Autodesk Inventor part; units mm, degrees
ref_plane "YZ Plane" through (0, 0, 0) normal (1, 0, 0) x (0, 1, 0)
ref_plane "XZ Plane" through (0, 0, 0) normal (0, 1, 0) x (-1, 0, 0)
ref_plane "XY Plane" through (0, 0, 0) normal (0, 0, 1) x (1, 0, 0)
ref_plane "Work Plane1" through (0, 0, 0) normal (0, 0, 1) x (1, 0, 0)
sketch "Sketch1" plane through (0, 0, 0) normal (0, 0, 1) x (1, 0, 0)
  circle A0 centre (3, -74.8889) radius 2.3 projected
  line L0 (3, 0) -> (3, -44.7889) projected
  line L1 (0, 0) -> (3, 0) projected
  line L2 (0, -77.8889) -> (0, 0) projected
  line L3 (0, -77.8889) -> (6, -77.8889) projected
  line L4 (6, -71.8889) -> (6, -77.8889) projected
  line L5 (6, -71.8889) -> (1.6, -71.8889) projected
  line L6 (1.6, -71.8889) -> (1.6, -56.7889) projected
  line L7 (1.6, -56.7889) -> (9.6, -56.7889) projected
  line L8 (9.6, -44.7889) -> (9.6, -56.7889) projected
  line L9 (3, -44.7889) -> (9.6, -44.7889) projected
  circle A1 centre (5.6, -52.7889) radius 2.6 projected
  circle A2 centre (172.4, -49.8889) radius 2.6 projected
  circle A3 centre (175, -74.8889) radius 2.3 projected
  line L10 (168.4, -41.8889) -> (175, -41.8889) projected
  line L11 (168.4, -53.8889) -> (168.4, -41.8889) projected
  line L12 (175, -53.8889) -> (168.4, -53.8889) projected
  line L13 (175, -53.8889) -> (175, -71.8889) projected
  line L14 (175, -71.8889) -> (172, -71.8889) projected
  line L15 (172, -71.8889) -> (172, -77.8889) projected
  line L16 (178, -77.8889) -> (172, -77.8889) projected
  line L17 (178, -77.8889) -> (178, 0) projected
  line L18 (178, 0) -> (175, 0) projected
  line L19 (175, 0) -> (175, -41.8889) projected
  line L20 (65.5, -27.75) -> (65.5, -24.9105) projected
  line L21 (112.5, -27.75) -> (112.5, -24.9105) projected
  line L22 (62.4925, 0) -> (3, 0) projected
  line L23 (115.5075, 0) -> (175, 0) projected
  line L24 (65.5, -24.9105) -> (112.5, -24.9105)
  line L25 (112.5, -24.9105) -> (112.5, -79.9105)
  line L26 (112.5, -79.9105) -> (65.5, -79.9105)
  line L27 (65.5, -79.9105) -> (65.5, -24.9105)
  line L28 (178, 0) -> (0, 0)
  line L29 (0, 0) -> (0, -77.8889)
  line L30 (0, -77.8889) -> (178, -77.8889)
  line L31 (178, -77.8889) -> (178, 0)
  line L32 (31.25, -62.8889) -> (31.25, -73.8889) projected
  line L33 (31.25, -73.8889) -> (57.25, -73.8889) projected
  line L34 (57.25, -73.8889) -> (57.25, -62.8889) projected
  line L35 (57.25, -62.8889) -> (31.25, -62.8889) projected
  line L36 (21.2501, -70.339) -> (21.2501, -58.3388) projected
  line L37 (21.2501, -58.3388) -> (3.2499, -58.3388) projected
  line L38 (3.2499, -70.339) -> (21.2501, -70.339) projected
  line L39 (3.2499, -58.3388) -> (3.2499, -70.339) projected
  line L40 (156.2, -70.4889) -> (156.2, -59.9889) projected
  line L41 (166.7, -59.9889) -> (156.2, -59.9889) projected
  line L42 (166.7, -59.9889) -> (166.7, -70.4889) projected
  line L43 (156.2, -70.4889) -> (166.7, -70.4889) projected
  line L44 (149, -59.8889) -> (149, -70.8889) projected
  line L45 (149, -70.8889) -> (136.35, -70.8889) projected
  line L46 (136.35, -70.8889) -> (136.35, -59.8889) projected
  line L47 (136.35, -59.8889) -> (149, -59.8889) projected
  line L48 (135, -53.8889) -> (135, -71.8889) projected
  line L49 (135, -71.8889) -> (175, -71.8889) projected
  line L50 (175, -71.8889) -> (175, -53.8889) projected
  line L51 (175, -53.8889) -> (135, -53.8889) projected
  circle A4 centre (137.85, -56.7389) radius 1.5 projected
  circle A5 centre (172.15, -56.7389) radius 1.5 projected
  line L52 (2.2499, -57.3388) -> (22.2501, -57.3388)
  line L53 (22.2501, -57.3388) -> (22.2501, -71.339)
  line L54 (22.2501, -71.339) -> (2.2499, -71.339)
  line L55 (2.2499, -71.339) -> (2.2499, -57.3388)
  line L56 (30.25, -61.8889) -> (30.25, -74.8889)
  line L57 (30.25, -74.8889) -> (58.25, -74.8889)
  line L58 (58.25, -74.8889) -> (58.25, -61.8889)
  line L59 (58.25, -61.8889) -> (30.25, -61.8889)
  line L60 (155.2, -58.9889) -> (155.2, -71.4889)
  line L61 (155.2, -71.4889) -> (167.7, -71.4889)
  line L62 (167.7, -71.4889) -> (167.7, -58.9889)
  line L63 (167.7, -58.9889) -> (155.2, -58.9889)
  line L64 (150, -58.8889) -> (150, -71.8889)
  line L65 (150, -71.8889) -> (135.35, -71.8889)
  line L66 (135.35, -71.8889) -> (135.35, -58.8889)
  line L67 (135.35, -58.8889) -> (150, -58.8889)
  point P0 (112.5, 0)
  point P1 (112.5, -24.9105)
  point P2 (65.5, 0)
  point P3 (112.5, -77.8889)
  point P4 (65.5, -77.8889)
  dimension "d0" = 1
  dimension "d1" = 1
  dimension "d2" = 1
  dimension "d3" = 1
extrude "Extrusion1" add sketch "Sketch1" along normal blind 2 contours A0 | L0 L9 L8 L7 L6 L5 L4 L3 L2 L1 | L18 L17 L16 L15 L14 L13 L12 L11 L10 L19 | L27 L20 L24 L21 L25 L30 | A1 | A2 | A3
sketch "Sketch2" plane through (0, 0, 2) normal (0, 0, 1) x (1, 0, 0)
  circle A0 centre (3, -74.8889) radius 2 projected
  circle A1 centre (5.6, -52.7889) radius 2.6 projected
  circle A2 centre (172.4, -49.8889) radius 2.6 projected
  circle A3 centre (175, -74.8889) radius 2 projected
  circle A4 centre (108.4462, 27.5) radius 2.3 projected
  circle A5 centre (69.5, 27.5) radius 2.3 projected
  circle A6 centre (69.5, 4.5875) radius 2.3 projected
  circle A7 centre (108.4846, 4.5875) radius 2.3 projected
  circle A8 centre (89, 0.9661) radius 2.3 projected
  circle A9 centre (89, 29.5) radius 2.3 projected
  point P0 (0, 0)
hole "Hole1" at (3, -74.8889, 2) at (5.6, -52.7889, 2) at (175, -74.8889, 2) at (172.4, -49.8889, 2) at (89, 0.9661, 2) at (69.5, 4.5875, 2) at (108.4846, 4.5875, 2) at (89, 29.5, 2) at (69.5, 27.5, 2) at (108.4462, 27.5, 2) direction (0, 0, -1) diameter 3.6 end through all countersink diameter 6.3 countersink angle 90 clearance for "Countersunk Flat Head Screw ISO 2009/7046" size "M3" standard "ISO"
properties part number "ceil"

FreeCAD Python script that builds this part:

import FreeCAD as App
import Part
import Sketcher

V = App.Vector

doc = App.newDocument("Part")
body = doc.addObject("PartDesign::Body", "Body")
body.AllowCompound = True

sketch1 = body.newObject("Sketcher::SketchObject", "Sketch")
sketch1.AttachmentSupport = (doc.getObject("XY_Plane"), [""])
sketch1.MapMode = "FlatFace"
sketch1.addGeometry(Part.LineSegment(V(3, -44.8, 0), V(3, 0, 0)), False)
sketch1.addGeometry(Part.LineSegment(V(3, 0, 0), V(0, 0, 0)), False)
sketch1.addGeometry(Part.LineSegment(V(0, 0, 0), V(0, -77.9, 0)), False)
sketch1.addGeometry(Part.LineSegment(V(0, -77.9, 0), V(6, -77.9, 0)), False)
sketch1.addGeometry(Part.LineSegment(V(6, -77.9, 0), V(6, -71.9, 0)), False)
sketch1.addGeometry(Part.LineSegment(V(6, -71.9, 0), V(1.6, -71.9, 0)), False)
sketch1.addGeometry(Part.LineSegment(V(1.6, -71.9, 0), V(1.6, -56.8, 0)), False)
sketch1.addGeometry(Part.LineSegment(V(1.6, -56.8, 0), V(9.6, -56.8, 0)), False)
sketch1.addGeometry(Part.LineSegment(V(9.6, -56.8, 0), V(9.6, -44.8, 0)), False)
sketch1.addGeometry(Part.LineSegment(V(9.6, -44.8, 0), V(3, -44.8, 0)), False)
sketch1.addGeometry(Part.LineSegment(V(178, 0, 0), V(175, 0, 0)), False)
sketch1.addGeometry(Part.LineSegment(V(175, 0, 0), V(175, -41.9, 0)), False)
sketch1.addGeometry(Part.LineSegment(V(175, -41.9, 0), V(168.4, -41.9, 0)), False)
sketch1.addGeometry(Part.LineSegment(V(168.4, -41.9, 0), V(168.4, -53.9, 0)), False)
sketch1.addGeometry(Part.LineSegment(V(168.4, -53.9, 0), V(175, -53.9, 0)), False)
sketch1.addGeometry(Part.LineSegment(V(175, -53.9, 0), V(175, -71.9, 0)), False)
sketch1.addGeometry(Part.LineSegment(V(175, -71.9, 0), V(172, -71.9, 0)), False)
sketch1.addGeometry(Part.LineSegment(V(172, -71.9, 0), V(172, -77.9, 0)), False)
sketch1.addGeometry(Part.LineSegment(V(172, -77.9, 0), V(178, -77.9, 0)), False)
sketch1.addGeometry(Part.LineSegment(V(178, -77.9, 0), V(178, 0, 0)), False)
sketch1.addGeometry(Part.LineSegment(V(65.5, -24.9, 0), V(65.5, -77.9, 0)), False)
sketch1.addGeometry(Part.LineSegment(V(65.5, -77.9, 0), V(112.5, -77.9, 0)), False)
sketch1.addGeometry(Part.LineSegment(V(112.5, -77.9, 0), V(112.5, -24.9, 0)), False)
sketch1.addGeometry(Part.LineSegment(V(112.5, -24.9, 0), V(65.5, -24.9, 0)), False)
sketch1.addConstraint(Sketcher.Constraint("Coincident", 0, 2, 1, 1))
sketch1.addConstraint(Sketcher.Constraint("Coincident", 1, 2, 2, 1))
sketch1.addConstraint(Sketcher.Constraint("Coincident", 2, 2, 3, 1))
sketch1.addConstraint(Sketcher.Constraint("Coincident", 3, 2, 4, 1))
sketch1.addConstraint(Sketcher.Constraint("Coincident", 4, 2, 5, 1))
sketch1.addConstraint(Sketcher.Constraint("Coincident", 5, 2, 6, 1))
sketch1.addConstraint(Sketcher.Constraint("Coincident", 6, 2, 7, 1))
sketch1.addConstraint(Sketcher.Constraint("Coincident", 7, 2, 8, 1))
sketch1.addConstraint(Sketcher.Constraint("Coincident", 8, 2, 9, 1))
sketch1.addConstraint(Sketcher.Constraint("Coincident", 9, 2, 0, 1))
sketch1.addConstraint(Sketcher.Constraint("Coincident", 10, 2, 11, 1))
sketch1.addConstraint(Sketcher.Constraint("Coincident", 11, 2, 12, 1))
sketch1.addConstraint(Sketcher.Constraint("Coincident", 12, 2, 13, 1))
sketch1.addConstraint(Sketcher.Constraint("Coincident", 13, 2, 14, 1))
sketch1.addConstraint(Sketcher.Constraint("Coincident", 14, 2, 15, 1))
sketch1.addConstraint(Sketcher.Constraint("Coincident", 15, 2, 16, 1))
sketch1.addConstraint(Sketcher.Constraint("Coincident", 16, 2, 17, 1))
sketch1.addConstraint(Sketcher.Constraint("Coincident", 17, 2, 18, 1))
sketch1.addConstraint(Sketcher.Constraint("Coincident", 18, 2, 19, 1))
sketch1.addConstraint(Sketcher.Constraint("Coincident", 19, 2, 10, 1))
sketch1.addConstraint(Sketcher.Constraint("Coincident", 20, 2, 21, 1))
sketch1.addConstraint(Sketcher.Constraint("Coincident", 21, 2, 22, 1))
sketch1.addConstraint(Sketcher.Constraint("Coincident", 22, 2, 23, 1))
sketch1.addConstraint(Sketcher.Constraint("Coincident", 23, 2, 20, 1))
sketch1.addConstraint(Sketcher.Constraint("Vertical", 0))
sketch1.addConstraint(Sketcher.Constraint("Horizontal", 1))
sketch1.addConstraint(Sketcher.Constraint("Vertical", 2))
sketch1.addConstraint(Sketcher.Constraint("Horizontal", 3))
sketch1.addConstraint(Sketcher.Constraint("Vertical", 4))
sketch1.addConstraint(Sketcher.Constraint("Horizontal", 5))
sketch1.addConstraint(Sketcher.Constraint("Vertical", 6))
sketch1.addConstraint(Sketcher.Constraint("Horizontal", 7))
sketch1.addConstraint(Sketcher.Constraint("Vertical", 8))
sketch1.addConstraint(Sketcher.Constraint("Horizontal", 9))
sketch1.addConstraint(Sketcher.Constraint("Horizontal", 10))
sketch1.addConstraint(Sketcher.Constraint("Vertical", 11))
sketch1.addConstraint(Sketcher.Constraint("Horizontal", 12))
sketch1.addConstraint(Sketcher.Constraint("Vertical", 13))
sketch1.addConstraint(Sketcher.Constraint("Horizontal", 14))
sketch1.addConstraint(Sketcher.Constraint("Vertical", 15))
sketch1.addConstraint(Sketcher.Constraint("Horizontal", 16))
sketch1.addConstraint(Sketcher.Constraint("Vertical", 17))
sketch1.addConstraint(Sketcher.Constraint("Horizontal", 18))
sketch1.addConstraint(Sketcher.Constraint("Vertical", 19))
sketch1.addConstraint(Sketcher.Constraint("Vertical", 20))
sketch1.addConstraint(Sketcher.Constraint("Horizontal", 21))
sketch1.addConstraint(Sketcher.Constraint("Vertical", 22))
sketch1.addConstraint(Sketcher.Constraint("Horizontal", 23))
sketch1.addConstraint(Sketcher.Constraint("Coincident", 1, 2, -1, 1))
sketch1.addConstraint(Sketcher.Constraint("PointOnObject", 10, 2, -1))
sketch1.addConstraint(Sketcher.Constraint("Horizontal", 5, 2, 15, 2))
sketch1.addConstraint(Sketcher.Constraint("Horizontal", 3, 2, 17, 2))
sketch1.addConstraint(Sketcher.Constraint("Horizontal", 18, 2, 20, 2))
sketch1.addConstraint(Sketcher.Constraint("Vertical", 11, 2, 14, 2))
sketch1.addConstraint(Sketcher.Constraint("Equal", 1, 10))
sketch1.addConstraint(Sketcher.Constraint("Equal", 9, 12))
sketch1.addConstraint(Sketcher.Constraint("Equal", 10, 16))
sketch1.addConstraint(Sketcher.Constraint("Equal", 3, 18))
sketch1.addConstraint(Sketcher.Constraint("Equal", 18, 4))
sketch1.addConstraint(Sketcher.Constraint("Equal", 8, 13))
sketch1.addConstraint(Sketcher.Constraint("DistanceX", 1, 2, 1, 1, 3.0))
sketch1.addConstraint(Sketcher.Constraint("DistanceX", 7, 1, 7, 2, 8.0))
sketch1.addConstraint(Sketcher.Constraint("DistanceX", 21, 1, 21, 2, 47.0))
sketch1.addConstraint(Sketcher.Constraint("DistanceY", 8, 1, 8, 2, 12.0))
sketch1.addConstraint(Sketcher.Constraint("DistanceY", 15, 2, 15, 1, 18.0))
sketch1.addConstraint(Sketcher.Constraint("DistanceX", 5, 2, 5, 1, 4.4))
sketch1.addConstraint(Sketcher.Constraint("DistanceY", 6, 1, 6, 2, 15.1))
sketch1.addConstraint(Sketcher.Constraint("DistanceX", -1, 1, 10, 2, 175.0))
sketch1.addConstraint(Sketcher.Constraint("DistanceX", -1, 1, 20, 2, 65.5))
sketch1.addConstraint(Sketcher.Constraint("DistanceY", 0, 1, 0, 2, 44.789))
sketch1.addConstraint(Sketcher.Constraint("DistanceY", 20, 2, 20, 1, 52.9784))
pad1 = body.newObject("PartDesign::Pad", "Pad")
pad1.Profile = sketch1
pad1.Length = 2

sketch2 = body.newObject("Sketcher::SketchObject", "Sketch001")
sketch2.AttachmentSupport = (doc.getObject("XY_Plane"), [""])
sketch2.MapMode = "FlatFace"
sketch2.AttachmentOffset = App.Placement(V(0, 0, 2), App.Rotation())
sketch2.addGeometry(Part.Circle(V(3, -74.9, 0), V(0, 0, 1), 1.8), False)
sketch2.addGeometry(Part.Circle(V(5.6, -52.8, 0), V(0, 0, 1), 1.8), False)
sketch2.addGeometry(Part.Circle(V(175, -74.9, 0), V(0, 0, 1), 1.8), False)
sketch2.addGeometry(Part.Circle(V(172.4, -49.9, 0), V(0, 0, 1), 1.8), False)
sketch2.addGeometry(Part.Circle(V(89, 1, 0), V(0, 0, 1), 1.8), False)
sketch2.addGeometry(Part.Circle(V(69.5, 4.6, 0), V(0, 0, 1), 1.8), False)
sketch2.addGeometry(Part.Circle(V(108.5, 4.6, 0), V(0, 0, 1), 1.8), False)
sketch2.addGeometry(Part.Circle(V(89, 29.5, 0), V(0, 0, 1), 1.8), False)
sketch2.addGeometry(Part.Circle(V(69.5, 27.5, 0), V(0, 0, 1), 1.8), False)
sketch2.addGeometry(Part.Circle(V(108.4, 27.5, 0), V(0, 0, 1), 1.8), False)
sketch2.addConstraint(Sketcher.Constraint("Equal", 0, 1))
sketch2.addConstraint(Sketcher.Constraint("Equal", 1, 2))
sketch2.addConstraint(Sketcher.Constraint("Equal", 2, 3))
sketch2.addConstraint(Sketcher.Constraint("Equal", 3, 4))
sketch2.addConstraint(Sketcher.Constraint("Equal", 4, 5))
sketch2.addConstraint(Sketcher.Constraint("Equal", 5, 6))
sketch2.addConstraint(Sketcher.Constraint("Equal", 6, 7))
sketch2.addConstraint(Sketcher.Constraint("Equal", 7, 8))
sketch2.addConstraint(Sketcher.Constraint("Equal", 8, 9))
sketch2.addConstraint(Sketcher.Constraint("Horizontal", 0, 3, 2, 3))
sketch2.addConstraint(Sketcher.Constraint("Horizontal", 5, 3, 6, 3))
sketch2.addConstraint(Sketcher.Constraint("Horizontal", 8, 3, 9, 3))
sketch2.addConstraint(Sketcher.Constraint("Vertical", 4, 3, 7, 3))
sketch2.addConstraint(Sketcher.Constraint("Vertical", 5, 3, 8, 3))
sketch2.addConstraint(Sketcher.Constraint("Diameter", 0, 3.6))
sketch2.addConstraint(Sketcher.Constraint("DistanceX", -1, 1, 0, 3, 3.0))
sketch2.addConstraint(Sketcher.Constraint("DistanceX", -1, 1, 2, 3, 175.0))
sketch2.addConstraint(Sketcher.Constraint("DistanceX", -1, 1, 4, 3, 89.0))
sketch2.addConstraint(Sketcher.Constraint("DistanceY", 2, 3, 3, 3, 25.0))
sketch2.addConstraint(Sketcher.Constraint("DistanceY", 8, 3, 7, 3, 2.0))
sketch2.addConstraint(Sketcher.Constraint("DistanceX", -1, 1, 1, 3, 5.6))
sketch2.addConstraint(Sketcher.Constraint("DistanceX", -1, 1, 3, 3, 172.4))
sketch2.addConstraint(Sketcher.Constraint("DistanceX", -1, 1, 5, 3, 69.5))
sketch2.addConstraint(Sketcher.Constraint("DistanceY", -1, 1, 7, 3, 29.5))
sketch2.addConstraint(Sketcher.Constraint("DistanceY", 0, 3, 1, 3, 22.1))
sketch2.addConstraint(Sketcher.Constraint("DistanceY", 0, 3, -1, 1, 74.889))
sketch2.addConstraint(Sketcher.Constraint("DistanceY", -1, 1, 4, 3, 0.966))
sketch2.addConstraint(Sketcher.Constraint("DistanceY", -1, 1, 5, 3, 4.5875))
sketch2.addConstraint(Sketcher.Constraint("DistanceX", -1, 1, 6, 3, 108.4846))
sketch2.addConstraint(Sketcher.Constraint("DistanceX", -1, 1, 9, 3, 108.4462))
doc.recompute()
hole = body.newObject("PartDesign::Hole", "Hole")
hole.Profile = sketch2
hole.ThreadType = "None"
hole.Diameter = 3.6
hole.DepthType = "ThroughAll"
hole.HoleCutType = "Countersink"
hole.HoleCutDiameter = 6.3
hole.HoleCutCountersinkAngle = 90

doc.recompute()
